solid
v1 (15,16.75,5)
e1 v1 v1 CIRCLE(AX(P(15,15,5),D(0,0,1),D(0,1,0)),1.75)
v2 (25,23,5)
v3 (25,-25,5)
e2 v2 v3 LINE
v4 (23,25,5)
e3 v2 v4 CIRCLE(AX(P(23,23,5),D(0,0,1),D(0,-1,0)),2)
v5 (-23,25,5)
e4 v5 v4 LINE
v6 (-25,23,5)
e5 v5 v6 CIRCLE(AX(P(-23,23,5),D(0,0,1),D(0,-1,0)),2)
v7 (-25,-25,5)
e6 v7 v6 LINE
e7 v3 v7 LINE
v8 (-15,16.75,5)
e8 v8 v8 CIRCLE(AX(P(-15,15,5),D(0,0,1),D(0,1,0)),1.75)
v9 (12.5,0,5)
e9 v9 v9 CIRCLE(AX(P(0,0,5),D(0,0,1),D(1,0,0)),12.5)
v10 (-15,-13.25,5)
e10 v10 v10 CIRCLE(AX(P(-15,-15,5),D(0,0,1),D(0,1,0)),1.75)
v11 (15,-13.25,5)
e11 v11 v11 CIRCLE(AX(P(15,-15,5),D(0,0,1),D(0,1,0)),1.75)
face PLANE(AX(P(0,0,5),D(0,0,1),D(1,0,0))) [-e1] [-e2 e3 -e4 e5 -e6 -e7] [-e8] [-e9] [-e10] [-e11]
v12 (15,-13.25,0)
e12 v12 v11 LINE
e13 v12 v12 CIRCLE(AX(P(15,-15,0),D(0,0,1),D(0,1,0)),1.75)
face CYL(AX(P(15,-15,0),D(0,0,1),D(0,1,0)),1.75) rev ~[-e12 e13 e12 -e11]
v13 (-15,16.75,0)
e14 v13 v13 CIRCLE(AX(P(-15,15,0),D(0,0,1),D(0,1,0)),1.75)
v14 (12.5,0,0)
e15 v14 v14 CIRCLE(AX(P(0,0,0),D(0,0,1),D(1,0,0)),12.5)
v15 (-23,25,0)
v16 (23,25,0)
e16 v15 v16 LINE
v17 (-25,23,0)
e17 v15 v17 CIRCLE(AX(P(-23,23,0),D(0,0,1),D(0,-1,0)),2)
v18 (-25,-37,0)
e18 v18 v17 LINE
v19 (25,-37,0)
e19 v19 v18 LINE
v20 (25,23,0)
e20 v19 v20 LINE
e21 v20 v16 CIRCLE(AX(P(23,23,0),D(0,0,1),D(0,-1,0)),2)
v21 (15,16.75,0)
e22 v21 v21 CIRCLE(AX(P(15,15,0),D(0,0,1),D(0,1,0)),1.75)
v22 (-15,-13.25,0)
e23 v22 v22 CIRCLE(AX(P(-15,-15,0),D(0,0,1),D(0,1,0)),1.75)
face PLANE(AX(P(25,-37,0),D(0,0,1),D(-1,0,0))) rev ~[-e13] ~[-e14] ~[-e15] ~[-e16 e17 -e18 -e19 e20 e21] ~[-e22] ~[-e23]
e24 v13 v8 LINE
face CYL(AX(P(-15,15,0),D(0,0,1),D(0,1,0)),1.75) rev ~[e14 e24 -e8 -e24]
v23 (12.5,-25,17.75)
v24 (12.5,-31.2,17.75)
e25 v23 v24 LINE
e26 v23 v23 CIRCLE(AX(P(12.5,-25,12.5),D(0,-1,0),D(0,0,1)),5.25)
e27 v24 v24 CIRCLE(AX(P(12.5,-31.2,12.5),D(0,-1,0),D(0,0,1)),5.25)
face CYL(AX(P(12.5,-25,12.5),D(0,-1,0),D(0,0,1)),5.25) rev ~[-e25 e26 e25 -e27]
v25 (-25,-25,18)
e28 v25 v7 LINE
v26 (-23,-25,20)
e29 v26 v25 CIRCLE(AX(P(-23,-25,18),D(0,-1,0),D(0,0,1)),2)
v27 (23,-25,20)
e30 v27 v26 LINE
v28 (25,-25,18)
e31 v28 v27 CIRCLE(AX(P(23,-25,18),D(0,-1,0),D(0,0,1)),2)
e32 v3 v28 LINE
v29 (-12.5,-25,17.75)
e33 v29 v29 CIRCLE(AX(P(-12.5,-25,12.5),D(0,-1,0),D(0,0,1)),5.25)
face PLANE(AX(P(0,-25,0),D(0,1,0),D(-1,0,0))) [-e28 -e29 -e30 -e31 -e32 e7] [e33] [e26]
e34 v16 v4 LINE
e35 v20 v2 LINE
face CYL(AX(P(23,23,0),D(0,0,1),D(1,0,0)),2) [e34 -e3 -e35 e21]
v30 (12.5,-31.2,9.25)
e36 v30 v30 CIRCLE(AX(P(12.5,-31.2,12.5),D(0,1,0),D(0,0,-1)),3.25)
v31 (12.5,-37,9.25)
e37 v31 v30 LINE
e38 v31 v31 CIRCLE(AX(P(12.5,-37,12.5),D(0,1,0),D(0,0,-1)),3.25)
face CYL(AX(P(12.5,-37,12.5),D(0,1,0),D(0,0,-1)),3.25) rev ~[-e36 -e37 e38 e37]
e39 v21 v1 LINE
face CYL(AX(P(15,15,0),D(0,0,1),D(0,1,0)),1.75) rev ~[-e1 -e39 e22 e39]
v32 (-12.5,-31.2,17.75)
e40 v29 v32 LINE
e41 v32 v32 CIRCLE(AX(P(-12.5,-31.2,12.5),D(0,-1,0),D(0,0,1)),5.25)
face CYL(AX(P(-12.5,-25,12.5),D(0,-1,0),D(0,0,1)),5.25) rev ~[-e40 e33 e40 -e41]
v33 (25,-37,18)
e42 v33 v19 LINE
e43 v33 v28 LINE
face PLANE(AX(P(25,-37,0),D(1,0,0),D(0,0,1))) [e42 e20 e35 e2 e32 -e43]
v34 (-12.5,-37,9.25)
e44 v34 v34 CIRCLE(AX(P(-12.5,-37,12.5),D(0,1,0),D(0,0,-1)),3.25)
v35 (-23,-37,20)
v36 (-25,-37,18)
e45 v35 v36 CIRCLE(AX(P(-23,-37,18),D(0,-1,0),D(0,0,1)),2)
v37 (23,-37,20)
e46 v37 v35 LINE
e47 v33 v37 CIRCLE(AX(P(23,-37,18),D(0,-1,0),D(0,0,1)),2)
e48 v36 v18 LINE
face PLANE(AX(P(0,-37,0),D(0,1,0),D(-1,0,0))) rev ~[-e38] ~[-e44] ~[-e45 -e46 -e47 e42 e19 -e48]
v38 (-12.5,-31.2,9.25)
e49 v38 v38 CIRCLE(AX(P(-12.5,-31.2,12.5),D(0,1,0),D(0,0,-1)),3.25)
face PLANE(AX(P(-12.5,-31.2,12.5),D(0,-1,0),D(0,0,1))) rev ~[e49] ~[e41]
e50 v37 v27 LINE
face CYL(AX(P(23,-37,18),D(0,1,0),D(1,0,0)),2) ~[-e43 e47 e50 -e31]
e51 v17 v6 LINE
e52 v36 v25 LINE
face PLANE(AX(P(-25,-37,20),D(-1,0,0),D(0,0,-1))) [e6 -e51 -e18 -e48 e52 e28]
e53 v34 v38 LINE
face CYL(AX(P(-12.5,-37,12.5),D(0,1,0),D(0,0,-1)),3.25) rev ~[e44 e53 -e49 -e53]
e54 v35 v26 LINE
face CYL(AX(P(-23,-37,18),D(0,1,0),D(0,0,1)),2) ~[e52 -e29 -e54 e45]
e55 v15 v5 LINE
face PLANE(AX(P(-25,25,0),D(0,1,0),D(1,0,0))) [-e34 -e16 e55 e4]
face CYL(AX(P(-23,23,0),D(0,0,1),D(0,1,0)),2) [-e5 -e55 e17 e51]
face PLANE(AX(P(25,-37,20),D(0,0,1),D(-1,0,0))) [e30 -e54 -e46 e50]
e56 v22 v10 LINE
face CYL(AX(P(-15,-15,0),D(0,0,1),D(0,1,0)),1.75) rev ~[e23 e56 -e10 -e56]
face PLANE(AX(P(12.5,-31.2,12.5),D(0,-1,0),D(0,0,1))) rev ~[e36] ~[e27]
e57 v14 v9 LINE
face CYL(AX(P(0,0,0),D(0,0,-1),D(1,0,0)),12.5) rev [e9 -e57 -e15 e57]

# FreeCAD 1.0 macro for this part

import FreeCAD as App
import Part
import Sketcher
from FreeCAD import Vector


def edges_at(feature, points):
    """Names of the edges that pass closest to the given points."""
    edges = feature.Shape.Edges
    near = lambda p: min(range(len(edges)), key=lambda i: edges[i].distToShape(Part.Vertex(*p))[0])
    return sorted({f"Edge{near(p) + 1}" for p in points})


def add_polygon(sketch, points):
    """Adds a closed chain of lines whose ends are joined by coincident constraints."""
    first, n = sketch.GeometryCount, len(points)
    for a, b in zip(points, points[1:] + points[:1]):
        sketch.addGeometry(Part.LineSegment(App.Vector(*a, 0), App.Vector(*b, 0)), False)
    for i in range(n):
        sketch.addConstraint(Sketcher.Constraint("Coincident", first + i, 2, first + (i + 1) % n, 1))

doc = App.newDocument("Part")
body = doc.addObject("PartDesign::Body", "Body")

sketch1 = body.newObject("Sketcher::SketchObject", "Sketch")
sketch1.AttachmentSupport = (doc.getObject("XY_Plane"), [""])
sketch1.MapMode = "FlatFace"
add_polygon(sketch1, [(-25, -25), (25, -25), (25, 25), (-25, 25)])
sketch1.addGeometry(Part.Circle(Vector(0, 0, 0), Vector(0, 0, 1), 12), False)
sketch1.addConstraint(Sketcher.Constraint("Horizontal", 0))
sketch1.addConstraint(Sketcher.Constraint("Vertical", 1))
sketch1.addConstraint(Sketcher.Constraint("Horizontal", 2))
sketch1.addConstraint(Sketcher.Constraint("Vertical", 3))
sketch1.addConstraint(Sketcher.Constraint("Coincident", 4, 3, -1, 1))
sketch1.addConstraint(Sketcher.Constraint("Symmetric", 0, 2, 2, 2, -1, 1))
sketch1.addConstraint(Sketcher.Constraint("Equal", 2, 1))
sketch1.addConstraint(Sketcher.Constraint("Diameter", 4, 25.0))
sketch1.addConstraint(Sketcher.Constraint("DistanceX", 0, 1, 0, 2, 50.0))
pad1 = body.newObject("PartDesign::Pad", "Pad")
pad1.Profile = sketch1
pad1.Length = 5

sketch2 = body.newObject("Sketcher::SketchObject", "Sketch001")
sketch2.AttachmentSupport = (doc.getObject("XY_Plane"), [""])
sketch2.MapMode = "FlatFace"
sketch2.addGeometry(Part.Circle(Vector(-15, 15, 0), Vector(0, 0, 1), 1.8), False)
sketch2.addGeometry(Part.Circle(Vector(15, 15, 0), Vector(0, 0, 1), 1.8), False)
sketch2.addGeometry(Part.Circle(Vector(-15, -15, 0), Vector(0, 0, 1), 1.8), False)
sketch2.addGeometry(Part.Circle(Vector(15, -15, 0), Vector(0, 0, 1), 1.8), False)
sketch2.addConstraint(Sketcher.Constraint("Equal", 0, 1))
sketch2.addConstraint(Sketcher.Constraint("Equal", 1, 2))
sketch2.addConstraint(Sketcher.Constraint("Equal", 2, 3))
sketch2.addConstraint(Sketcher.Constraint("Symmetric", 1, 3, 2, 3, -1, 1))
sketch2.addConstraint(Sketcher.Constraint("Symmetric", 0, 3, 3, 3, -1, 1))
sketch2.addConstraint(Sketcher.Constraint("Symmetric", 0, 3, 1, 3, -2))
sketch2.addConstraint(Sketcher.Constraint("Diameter", 0, 3.5))
sketch2.addConstraint(Sketcher.Constraint("DistanceX", 0, 3, -1, 1, 15.0))
sketch2.addConstraint(Sketcher.Constraint("DistanceY", -1, 1, 0, 3, 15.0))
doc.recompute()
hole = body.newObject("PartDesign::Hole", "Hole")
hole.Profile = sketch2
hole.ThreadType = "None"
hole.Diameter = 3.5
hole.DepthType = "ThroughAll"
hole.Reversed = True

sketch3 = body.newObject("Sketcher::SketchObject", "Sketch002")
sketch3.AttachmentSupport = (doc.getObject("XZ_Plane"), [""])
sketch3.MapMode = "FlatFace"
sketch3.AttachmentOffset = App.Placement(Vector(0, 0, 37), App.Rotation())
add_polygon(sketch3, [(25, 20), (25, 0), (-25, 0), (-25, 20)])
sketch3.addConstraint(Sketcher.Constraint("Vertical", 0))
sketch3.addConstraint(Sketcher.Constraint("Horizontal", 1))
sketch3.addConstraint(Sketcher.Constraint("Vertical", 2))
sketch3.addConstraint(Sketcher.Constraint("Horizontal", 3))
sketch3.addConstraint(Sketcher.Constraint("Symmetric", 0, 2, 1, 2, -1, 1))
sketch3.addConstraint(Sketcher.Constraint("DistanceY", 0, 2, 0, 1, 20.0))
sketch3.addConstraint(Sketcher.Constraint("DistanceX", -1, 1, 0, 2, 25.0))
pad2 = body.newObject("PartDesign::Pad", "Pad001")
pad2.Profile = sketch3
pad2.Length = 12
pad2.Reversed = True

sketch4 = body.newObject("Sketcher::SketchObject", "Sketch003")
sketch4.AttachmentSupport = (doc.getObject("XZ_Plane"), [""])
sketch4.MapMode = "FlatFace"
sketch4.AttachmentOffset = App.Placement(Vector(0, 0, 37), App.Rotation())
sketch4.addGeometry(Part.Circle(Vector(12.5, 12.5, 0), Vector(0, 0, 1), 3.2), False)
sketch4.addGeometry(Part.Circle(Vector(-12.5, 12.5, 0), Vector(0, 0, 1), 3.2), False)
sketch4.addConstraint(Sketcher.Constraint("Equal", 0, 1))
sketch4.addConstraint(Sketcher.Constraint("Symmetric", 0, 3, 1, 3, -2))
sketch4.addConstraint(Sketcher.Constraint("Diameter", 0, 6.5))
sketch4.addConstraint(Sketcher.Constraint("DistanceX", 1, 3, 0, 3, 25.0))
sketch4.addConstraint(Sketcher.Constraint("DistanceY", -1, 1, 0, 3, 12.5))
doc.recompute()
hole2 = body.newObject("PartDesign::Hole", "Hole001")
hole2.Profile = sketch4
hole2.ThreadType = "None"
hole2.Diameter = 6.5
hole2.DepthType = "ThroughAll"
doc.recompute()

fillet = body.newObject("PartDesign::Fillet", "Fillet")
fillet.Base = (hole2, edges_at(hole2, [
    (25, 25, 2.5),
    (-25, 25, 2.5),
    (25, -31, 20),
    (-25, -31, 20),
]))
fillet.Radius = 2

sketch5 = body.newObject("Sketcher::SketchObject", "Sketch004")
sketch5.AttachmentSupport = (doc.getObject("XZ_Plane"), [""])
sketch5.MapMode = "FlatFace"
sketch5.AttachmentOffset = App.Placement(Vector(0, 0, 25), App.Rotation())
sketch5.addGeometry(Part.Circle(Vector(-12, 12, 0), Vector(0, 0, 1), 5), False)
sketch5.addGeometry(Part.Circle(Vector(12, 12, 0), Vector(0, 0, 1), 5), False)
sketch5.addConstraint(Sketcher.Constraint("Equal", 0, 1))
sketch5.addConstraint(Sketcher.Constraint("Symmetric", 0, 3, 1, 3, -2))
sketch5.addConstraint(Sketcher.Constraint("Diameter", 0, 10.5))
sketch5.addConstraint(Sketcher.Constraint("DistanceX", 0, 3, 1, 3, 25.0))
sketch5.addConstraint(Sketcher.Constraint("DistanceY", -1, 1, 0, 3, 12.5))
doc.recompute()
hole3 = body.newObject("PartDesign::Hole", "Hole002")
hole3.Profile = sketch5
hole3.ThreadType = "None"
hole3.Diameter = 10.5
hole3.DepthType = "Dimension"
hole3.Depth = 6.2
hole3.DrillPoint = "Flat"
hole3.Reversed = True

doc.recompute()
